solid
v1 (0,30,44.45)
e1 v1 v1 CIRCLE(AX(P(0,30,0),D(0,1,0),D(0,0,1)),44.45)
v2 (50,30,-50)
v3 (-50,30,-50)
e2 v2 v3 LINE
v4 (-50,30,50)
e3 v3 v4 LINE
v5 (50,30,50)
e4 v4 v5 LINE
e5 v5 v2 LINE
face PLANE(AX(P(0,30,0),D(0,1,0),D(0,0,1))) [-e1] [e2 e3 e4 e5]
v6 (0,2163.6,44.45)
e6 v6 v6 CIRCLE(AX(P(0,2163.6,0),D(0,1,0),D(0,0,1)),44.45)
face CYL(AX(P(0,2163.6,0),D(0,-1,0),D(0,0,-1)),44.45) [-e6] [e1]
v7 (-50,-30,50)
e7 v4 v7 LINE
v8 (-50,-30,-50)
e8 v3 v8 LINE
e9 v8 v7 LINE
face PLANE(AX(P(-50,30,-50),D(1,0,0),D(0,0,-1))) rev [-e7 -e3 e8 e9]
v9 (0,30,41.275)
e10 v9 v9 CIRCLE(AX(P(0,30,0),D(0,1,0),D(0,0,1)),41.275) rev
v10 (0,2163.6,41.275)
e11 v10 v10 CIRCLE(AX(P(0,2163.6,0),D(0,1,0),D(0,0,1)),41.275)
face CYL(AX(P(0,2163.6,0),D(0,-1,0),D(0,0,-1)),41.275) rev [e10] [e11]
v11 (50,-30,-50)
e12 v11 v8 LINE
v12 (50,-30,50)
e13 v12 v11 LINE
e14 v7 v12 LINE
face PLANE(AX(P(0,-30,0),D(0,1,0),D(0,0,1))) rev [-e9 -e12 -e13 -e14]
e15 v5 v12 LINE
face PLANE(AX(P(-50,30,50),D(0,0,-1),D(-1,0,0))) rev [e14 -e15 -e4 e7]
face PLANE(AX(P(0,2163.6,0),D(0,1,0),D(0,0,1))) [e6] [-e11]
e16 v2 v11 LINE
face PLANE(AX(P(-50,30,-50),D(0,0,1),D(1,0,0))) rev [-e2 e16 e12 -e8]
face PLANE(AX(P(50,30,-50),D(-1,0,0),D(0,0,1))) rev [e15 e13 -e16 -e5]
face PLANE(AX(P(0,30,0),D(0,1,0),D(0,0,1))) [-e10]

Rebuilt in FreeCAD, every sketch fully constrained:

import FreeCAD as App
import Part
import Sketcher
Q = App.Units.Quantity

doc = App.newDocument("Part")
body = doc.addObject("PartDesign::Body", "Body")

sketch1 = body.newObject("Sketcher::SketchObject", "Sketch")
sketch1.AttachmentSupport = (doc.getObject("XZ_Plane"), [""])
sketch1.MapMode = "FlatFace"
sketch1.addGeometry([
    Part.LineSegment(App.Vector(-50, -50, 0), App.Vector(-50, 50, 0)),
    Part.LineSegment(App.Vector(-50, 50, 0), App.Vector(50, 50, 0)),
    Part.LineSegment(App.Vector(50, 50, 0), App.Vector(50, -50, 0)),
    Part.LineSegment(App.Vector(50, -50, 0), App.Vector(-50, -50, 0)),
], False)
sketch1.addConstraint([
    Sketcher.Constraint("Coincident", 0, 2, 1, 1),
    Sketcher.Constraint("Coincident", 1, 2, 2, 1),
    Sketcher.Constraint("Coincident", 2, 2, 3, 1),
    Sketcher.Constraint("Coincident", 3, 2, 0, 1),
    Sketcher.Constraint("Vertical", 0),
    Sketcher.Constraint("Horizontal", 1),
    Sketcher.Constraint("Vertical", 2),
    Sketcher.Constraint("Horizontal", 3),
    Sketcher.Constraint("Symmetric", 0, 2, 2, 2, -1, 1),
    Sketcher.Constraint("Equal", 3, 0),
    Sketcher.Constraint("DistanceX", 1, 1, 1, 2, Q("100 mm")),
])
pad1 = body.newObject("PartDesign::Pad", "Pad")
pad1.Profile = sketch1
pad1.Length = 60
pad1.Midplane = True

sketch2 = body.newObject("Sketcher::SketchObject", "Sketch001")
sketch2.AttachmentSupport = (doc.getObject("XZ_Plane"), [""])
sketch2.MapMode = "FlatFace"
sketch2.AttachmentOffset = App.Placement(App.Vector(0, 0, -30), App.Rotation())
sketch2.addGeometry([
    Part.Circle(App.Vector(0, 0, 0), App.Vector(0, 0, 1), 44.45),
    Part.Circle(App.Vector(0, 0, 0), App.Vector(0, 0, 1), 41.275),
], False)
sketch2.addConstraint([
    Sketcher.Constraint("Coincident", 0, 3, -1, 1),
    Sketcher.Constraint("Coincident", 1, 3, -1, 1),
    Sketcher.Constraint("Diameter", 0, Q("3.5 in")),
    Sketcher.Constraint("Diameter", 1, Q("3.25 in")),
])
pad2 = body.newObject("PartDesign::Pad", "Pad001")
pad2.Profile = sketch2
pad2.Length = Q("84 in")
pad2.Reversed = True

doc.recompute()
